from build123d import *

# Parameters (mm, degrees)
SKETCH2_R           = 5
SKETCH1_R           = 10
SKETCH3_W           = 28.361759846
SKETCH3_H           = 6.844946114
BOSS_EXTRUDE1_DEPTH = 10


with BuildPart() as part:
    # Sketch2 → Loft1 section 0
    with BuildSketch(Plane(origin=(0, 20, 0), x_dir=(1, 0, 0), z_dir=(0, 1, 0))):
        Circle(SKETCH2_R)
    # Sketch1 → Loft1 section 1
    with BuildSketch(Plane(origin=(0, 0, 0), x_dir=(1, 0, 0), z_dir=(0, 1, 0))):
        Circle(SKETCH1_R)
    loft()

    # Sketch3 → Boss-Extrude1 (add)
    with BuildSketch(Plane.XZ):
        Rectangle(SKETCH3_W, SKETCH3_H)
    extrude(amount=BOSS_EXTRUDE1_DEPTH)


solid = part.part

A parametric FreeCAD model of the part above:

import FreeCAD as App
import Part
import Sketcher
from FreeCAD import Vector
Q = App.Units.Quantity


def add_polygon(sketch, points):
    """Adds a closed chain of lines whose ends are joined by coincident constraints."""
    first, n = sketch.GeometryCount, len(points)
    for a, b in zip(points, points[1:] + points[:1]):
        sketch.addGeometry(Part.LineSegment(App.Vector(*a, 0), App.Vector(*b, 0)), False)
    for i in range(n):
        sketch.addConstraint(Sketcher.Constraint("Coincident", first + i, 2, first + (i + 1) % n, 1))

doc = App.newDocument("Part")
params = doc.addObject("Spreadsheet::Sheet", "Params")
for row, (alias, value) in enumerate([
    ("sketch1_diameter", "10 mm"),
    ("sketch2_diameter", "20 mm"),
    ("pad1_length", "10 mm"),
], start=1):
    params.set(f"A{row}", alias)
    params.set(f"B{row}", "=" + value)
    params.setAlias(f"B{row}", alias)

body = doc.addObject("PartDesign::Body", "Body")

# Sketch on XZ plane
sketch1 = body.newObject("Sketcher::SketchObject", "Sketch")
sketch1.AttachmentSupport = (doc.getObject("XZ_Plane"), [""])
sketch1.MapMode = "FlatFace"
sketch1.AttachmentOffset = App.Placement(Vector(0, 0, -20), App.Rotation())
sketch1.addGeometry(Part.Circle(Vector(0, 0, 0), Vector(0, 0, 1), 5), False)
sketch1.addConstraint([
    Sketcher.Constraint("Coincident", 0, 3, -1, 1),
    Sketcher.Constraint("Diameter", 0, Q("10 mm")),
])
sketch1.setExpression("Constraints[1]", "Params.sketch1_diameter")

# Sketch on XZ plane
sketch2 = body.newObject("Sketcher::SketchObject", "Sketch001")
sketch2.AttachmentSupport = (doc.getObject("XZ_Plane"), [""])
sketch2.MapMode = "FlatFace"
sketch2.addGeometry(Part.Circle(Vector(0, 0, 0), Vector(0, 0, 1), 10), False)
sketch2.addConstraint([
    Sketcher.Constraint("Coincident", 0, 3, -1, 1),
    Sketcher.Constraint("Diameter", 0, Q("20 mm")),
])
sketch2.setExpression("Constraints[1]", "Params.sketch2_diameter")

additiveloft = body.newObject("PartDesign::AdditiveLoft", "AdditiveLoft")
additiveloft.Profile = sketch1
additiveloft.Sections = [sketch2]

# Sketch on XZ plane
sketch3 = body.newObject("Sketcher::SketchObject", "Sketch002")
sketch3.AttachmentSupport = (doc.getObject("XZ_Plane"), [""])
sketch3.MapMode = "FlatFace"
add_polygon(sketch3, [(-14.18088, 3.422473), (-14.18088, -3.422473), (14.18088, -3.422473), (14.18088, 3.422473)])  # lines 0-3
sketch3.addConstraint([
    Sketcher.Constraint("Vertical", 0),
    Sketcher.Constraint("Horizontal", 1),
    Sketcher.Constraint("Vertical", 2),
    Sketcher.Constraint("Horizontal", 3),
    Sketcher.Constraint("Symmetric", 0, 2, 2, 2, -1, 1),
    Sketcher.Constraint("DistanceX", 1, 1, 1, 2, Q("28.36176 mm")),
    Sketcher.Constraint("DistanceY", 0, 2, 0, 1, Q("6.844946 mm")),
])
pad1 = body.newObject("PartDesign::Pad", "Pad")
pad1.Profile = sketch3
pad1.setExpression("Length", "Params.pad1_length")

doc.recompute()
